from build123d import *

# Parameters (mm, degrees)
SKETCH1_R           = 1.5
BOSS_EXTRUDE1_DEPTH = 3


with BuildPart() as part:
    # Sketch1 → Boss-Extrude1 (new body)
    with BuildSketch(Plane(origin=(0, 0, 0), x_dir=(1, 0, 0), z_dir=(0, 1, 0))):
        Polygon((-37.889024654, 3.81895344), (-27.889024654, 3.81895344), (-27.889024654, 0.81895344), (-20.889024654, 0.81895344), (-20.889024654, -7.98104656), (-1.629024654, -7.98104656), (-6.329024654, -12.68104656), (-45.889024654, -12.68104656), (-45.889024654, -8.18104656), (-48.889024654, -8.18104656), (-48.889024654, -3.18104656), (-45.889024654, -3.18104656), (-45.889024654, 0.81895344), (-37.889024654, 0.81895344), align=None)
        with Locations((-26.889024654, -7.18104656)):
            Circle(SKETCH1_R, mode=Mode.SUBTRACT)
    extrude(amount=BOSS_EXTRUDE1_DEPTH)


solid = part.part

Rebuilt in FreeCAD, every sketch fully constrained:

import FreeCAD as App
import Part
import Sketcher
from FreeCAD import Vector
Q = App.Units.Quantity

doc = App.newDocument("Part")
body = doc.addObject("PartDesign::Body", "Body")

# Sketch on XZ plane
sketch1 = doc.addObject("Sketcher::SketchObject", "Sketch")
body.addObject(sketch1)
sketch1.AttachmentSupport = (doc.XZ_Plane, [""])
sketch1.MapMode = "FlatFace"
sketch1.addGeometry([
    Part.LineSegment(Vector(-27.889025, -3.818953, 0), Vector(-37.889025, -3.818953, 0)),  # 0
    Part.LineSegment(Vector(-37.889025, -3.818953, 0), Vector(-37.889025, -0.818953, 0)),  # 1
    Part.LineSegment(Vector(-37.889025, -0.818953, 0), Vector(-45.889025, -0.818953, 0)),  # 2
    Part.LineSegment(Vector(-45.889025, -0.818953, 0), Vector(-45.889025, 3.181047, 0)),  # 3
    Part.LineSegment(Vector(-45.889025, 3.181047, 0), Vector(-48.889025, 3.181047, 0)),  # 4
    Part.LineSegment(Vector(-48.889025, 3.181047, 0), Vector(-48.889025, 8.181047, 0)),  # 5
    Part.LineSegment(Vector(-48.889025, 8.181047, 0), Vector(-45.889025, 8.181047, 0)),  # 6
    Part.LineSegment(Vector(-45.889025, 8.181047, 0), Vector(-45.889025, 12.681047, 0)),  # 7
    Part.LineSegment(Vector(-45.889025, 12.681047, 0), Vector(-6.329025, 12.681047, 0)),  # 8
    Part.LineSegment(Vector(-6.329025, 12.681047, 0), Vector(-1.629025, 7.981047, 0)),  # 9
    Part.LineSegment(Vector(-1.629025, 7.981047, 0), Vector(-20.889025, 7.981047, 0)),  # 10
    Part.LineSegment(Vector(-20.889025, 7.981047, 0), Vector(-20.889025, -0.818953, 0)),  # 11
    Part.LineSegment(Vector(-20.889025, -0.818953, 0), Vector(-27.889025, -0.818953, 0)),  # 12
    Part.LineSegment(Vector(-27.889025, -0.818953, 0), Vector(-27.889025, -3.818953, 0)),  # 13
    Part.Circle(Vector(-26.889025, 7.181047, 0), Vector(0, 0, 1), 1.5),  # 14
], False)
sketch1.addConstraint([
    Sketcher.Constraint("Coincident", 0, 2, 1, 1),
    Sketcher.Constraint("Coincident", 1, 2, 2, 1),
    Sketcher.Constraint("Coincident", 2, 2, 3, 1),
    Sketcher.Constraint("Coincident", 3, 2, 4, 1),
    Sketcher.Constraint("Coincident", 4, 2, 5, 1),
    Sketcher.Constraint("Coincident", 5, 2, 6, 1),
    Sketcher.Constraint("Coincident", 6, 2, 7, 1),
    Sketcher.Constraint("Coincident", 7, 2, 8, 1),
    Sketcher.Constraint("Coincident", 8, 2, 9, 1),
    Sketcher.Constraint("Coincident", 9, 2, 10, 1),
    Sketcher.Constraint("Coincident", 10, 2, 11, 1),
    Sketcher.Constraint("Coincident", 11, 2, 12, 1),
    Sketcher.Constraint("Coincident", 12, 2, 13, 1),
    Sketcher.Constraint("Coincident", 13, 2, 0, 1),
    Sketcher.Constraint("Horizontal", 0),
    Sketcher.Constraint("Vertical", 1),
    Sketcher.Constraint("Horizontal", 2),
    Sketcher.Constraint("Vertical", 3),
    Sketcher.Constraint("Horizontal", 4),
    Sketcher.Constraint("Vertical", 5),
    Sketcher.Constraint("Horizontal", 6),
    Sketcher.Constraint("Vertical", 7),
    Sketcher.Constraint("Horizontal", 8),
    Sketcher.Constraint("Horizontal", 10),
    Sketcher.Constraint("Vertical", 11),
    Sketcher.Constraint("Horizontal", 12),
    Sketcher.Constraint("Vertical", 13),
    Sketcher.Constraint("Horizontal", 2, 2, 11, 2),
    Sketcher.Constraint("Vertical", 3, 2, 6, 2),
    Sketcher.Constraint("Equal", 6, 1),
    Sketcher.Constraint("Diameter", 14, Q("3 mm")),
    Sketcher.Constraint("DistanceX", 0, 2, 0, 1, Q("10 mm")),
    Sketcher.Constraint("DistanceX", 2, 2, 2, 1, Q("8 mm")),
    Sketcher.Constraint("DistanceX", 4, 2, 4, 1, Q("3 mm")),
    Sketcher.Constraint("DistanceX", 12, 2, 12, 1, Q("7 mm")),
    Sketcher.Constraint("DistanceY", 3, 1, 3, 2, Q("4 mm")),
    Sketcher.Constraint("DistanceY", 5, 1, 5, 2, Q("5 mm")),
    Sketcher.Constraint("Angle", 9, Q("-45 deg")),
    Sketcher.Constraint("DistanceY", 7, 1, 7, 2, Q("4.5 mm")),
    Sketcher.Constraint("DistanceY", 11, 2, 11, 1, Q("8.8 mm")),
    Sketcher.Constraint("DistanceX", 0, 2, 14, 3, Q("11 mm")),
    Sketcher.Constraint("DistanceY", 0, 2, 14, 3, Q("11 mm")),
    Sketcher.Constraint("DistanceX", 8, 1, 8, 2, Q("39.56 mm")),
    Sketcher.Constraint("DistanceX", 14, 3, -1, 1, Q("26.889025 mm")),
    Sketcher.Constraint("DistanceY", -1, 1, 14, 3, Q("7.181047 mm")),
])
pad1 = doc.addObject("PartDesign::Pad", "Pad")
body.addObject(pad1)
pad1.Profile = sketch1
pad1.Length = 3
pad1.Reversed = True

doc.recompute()
